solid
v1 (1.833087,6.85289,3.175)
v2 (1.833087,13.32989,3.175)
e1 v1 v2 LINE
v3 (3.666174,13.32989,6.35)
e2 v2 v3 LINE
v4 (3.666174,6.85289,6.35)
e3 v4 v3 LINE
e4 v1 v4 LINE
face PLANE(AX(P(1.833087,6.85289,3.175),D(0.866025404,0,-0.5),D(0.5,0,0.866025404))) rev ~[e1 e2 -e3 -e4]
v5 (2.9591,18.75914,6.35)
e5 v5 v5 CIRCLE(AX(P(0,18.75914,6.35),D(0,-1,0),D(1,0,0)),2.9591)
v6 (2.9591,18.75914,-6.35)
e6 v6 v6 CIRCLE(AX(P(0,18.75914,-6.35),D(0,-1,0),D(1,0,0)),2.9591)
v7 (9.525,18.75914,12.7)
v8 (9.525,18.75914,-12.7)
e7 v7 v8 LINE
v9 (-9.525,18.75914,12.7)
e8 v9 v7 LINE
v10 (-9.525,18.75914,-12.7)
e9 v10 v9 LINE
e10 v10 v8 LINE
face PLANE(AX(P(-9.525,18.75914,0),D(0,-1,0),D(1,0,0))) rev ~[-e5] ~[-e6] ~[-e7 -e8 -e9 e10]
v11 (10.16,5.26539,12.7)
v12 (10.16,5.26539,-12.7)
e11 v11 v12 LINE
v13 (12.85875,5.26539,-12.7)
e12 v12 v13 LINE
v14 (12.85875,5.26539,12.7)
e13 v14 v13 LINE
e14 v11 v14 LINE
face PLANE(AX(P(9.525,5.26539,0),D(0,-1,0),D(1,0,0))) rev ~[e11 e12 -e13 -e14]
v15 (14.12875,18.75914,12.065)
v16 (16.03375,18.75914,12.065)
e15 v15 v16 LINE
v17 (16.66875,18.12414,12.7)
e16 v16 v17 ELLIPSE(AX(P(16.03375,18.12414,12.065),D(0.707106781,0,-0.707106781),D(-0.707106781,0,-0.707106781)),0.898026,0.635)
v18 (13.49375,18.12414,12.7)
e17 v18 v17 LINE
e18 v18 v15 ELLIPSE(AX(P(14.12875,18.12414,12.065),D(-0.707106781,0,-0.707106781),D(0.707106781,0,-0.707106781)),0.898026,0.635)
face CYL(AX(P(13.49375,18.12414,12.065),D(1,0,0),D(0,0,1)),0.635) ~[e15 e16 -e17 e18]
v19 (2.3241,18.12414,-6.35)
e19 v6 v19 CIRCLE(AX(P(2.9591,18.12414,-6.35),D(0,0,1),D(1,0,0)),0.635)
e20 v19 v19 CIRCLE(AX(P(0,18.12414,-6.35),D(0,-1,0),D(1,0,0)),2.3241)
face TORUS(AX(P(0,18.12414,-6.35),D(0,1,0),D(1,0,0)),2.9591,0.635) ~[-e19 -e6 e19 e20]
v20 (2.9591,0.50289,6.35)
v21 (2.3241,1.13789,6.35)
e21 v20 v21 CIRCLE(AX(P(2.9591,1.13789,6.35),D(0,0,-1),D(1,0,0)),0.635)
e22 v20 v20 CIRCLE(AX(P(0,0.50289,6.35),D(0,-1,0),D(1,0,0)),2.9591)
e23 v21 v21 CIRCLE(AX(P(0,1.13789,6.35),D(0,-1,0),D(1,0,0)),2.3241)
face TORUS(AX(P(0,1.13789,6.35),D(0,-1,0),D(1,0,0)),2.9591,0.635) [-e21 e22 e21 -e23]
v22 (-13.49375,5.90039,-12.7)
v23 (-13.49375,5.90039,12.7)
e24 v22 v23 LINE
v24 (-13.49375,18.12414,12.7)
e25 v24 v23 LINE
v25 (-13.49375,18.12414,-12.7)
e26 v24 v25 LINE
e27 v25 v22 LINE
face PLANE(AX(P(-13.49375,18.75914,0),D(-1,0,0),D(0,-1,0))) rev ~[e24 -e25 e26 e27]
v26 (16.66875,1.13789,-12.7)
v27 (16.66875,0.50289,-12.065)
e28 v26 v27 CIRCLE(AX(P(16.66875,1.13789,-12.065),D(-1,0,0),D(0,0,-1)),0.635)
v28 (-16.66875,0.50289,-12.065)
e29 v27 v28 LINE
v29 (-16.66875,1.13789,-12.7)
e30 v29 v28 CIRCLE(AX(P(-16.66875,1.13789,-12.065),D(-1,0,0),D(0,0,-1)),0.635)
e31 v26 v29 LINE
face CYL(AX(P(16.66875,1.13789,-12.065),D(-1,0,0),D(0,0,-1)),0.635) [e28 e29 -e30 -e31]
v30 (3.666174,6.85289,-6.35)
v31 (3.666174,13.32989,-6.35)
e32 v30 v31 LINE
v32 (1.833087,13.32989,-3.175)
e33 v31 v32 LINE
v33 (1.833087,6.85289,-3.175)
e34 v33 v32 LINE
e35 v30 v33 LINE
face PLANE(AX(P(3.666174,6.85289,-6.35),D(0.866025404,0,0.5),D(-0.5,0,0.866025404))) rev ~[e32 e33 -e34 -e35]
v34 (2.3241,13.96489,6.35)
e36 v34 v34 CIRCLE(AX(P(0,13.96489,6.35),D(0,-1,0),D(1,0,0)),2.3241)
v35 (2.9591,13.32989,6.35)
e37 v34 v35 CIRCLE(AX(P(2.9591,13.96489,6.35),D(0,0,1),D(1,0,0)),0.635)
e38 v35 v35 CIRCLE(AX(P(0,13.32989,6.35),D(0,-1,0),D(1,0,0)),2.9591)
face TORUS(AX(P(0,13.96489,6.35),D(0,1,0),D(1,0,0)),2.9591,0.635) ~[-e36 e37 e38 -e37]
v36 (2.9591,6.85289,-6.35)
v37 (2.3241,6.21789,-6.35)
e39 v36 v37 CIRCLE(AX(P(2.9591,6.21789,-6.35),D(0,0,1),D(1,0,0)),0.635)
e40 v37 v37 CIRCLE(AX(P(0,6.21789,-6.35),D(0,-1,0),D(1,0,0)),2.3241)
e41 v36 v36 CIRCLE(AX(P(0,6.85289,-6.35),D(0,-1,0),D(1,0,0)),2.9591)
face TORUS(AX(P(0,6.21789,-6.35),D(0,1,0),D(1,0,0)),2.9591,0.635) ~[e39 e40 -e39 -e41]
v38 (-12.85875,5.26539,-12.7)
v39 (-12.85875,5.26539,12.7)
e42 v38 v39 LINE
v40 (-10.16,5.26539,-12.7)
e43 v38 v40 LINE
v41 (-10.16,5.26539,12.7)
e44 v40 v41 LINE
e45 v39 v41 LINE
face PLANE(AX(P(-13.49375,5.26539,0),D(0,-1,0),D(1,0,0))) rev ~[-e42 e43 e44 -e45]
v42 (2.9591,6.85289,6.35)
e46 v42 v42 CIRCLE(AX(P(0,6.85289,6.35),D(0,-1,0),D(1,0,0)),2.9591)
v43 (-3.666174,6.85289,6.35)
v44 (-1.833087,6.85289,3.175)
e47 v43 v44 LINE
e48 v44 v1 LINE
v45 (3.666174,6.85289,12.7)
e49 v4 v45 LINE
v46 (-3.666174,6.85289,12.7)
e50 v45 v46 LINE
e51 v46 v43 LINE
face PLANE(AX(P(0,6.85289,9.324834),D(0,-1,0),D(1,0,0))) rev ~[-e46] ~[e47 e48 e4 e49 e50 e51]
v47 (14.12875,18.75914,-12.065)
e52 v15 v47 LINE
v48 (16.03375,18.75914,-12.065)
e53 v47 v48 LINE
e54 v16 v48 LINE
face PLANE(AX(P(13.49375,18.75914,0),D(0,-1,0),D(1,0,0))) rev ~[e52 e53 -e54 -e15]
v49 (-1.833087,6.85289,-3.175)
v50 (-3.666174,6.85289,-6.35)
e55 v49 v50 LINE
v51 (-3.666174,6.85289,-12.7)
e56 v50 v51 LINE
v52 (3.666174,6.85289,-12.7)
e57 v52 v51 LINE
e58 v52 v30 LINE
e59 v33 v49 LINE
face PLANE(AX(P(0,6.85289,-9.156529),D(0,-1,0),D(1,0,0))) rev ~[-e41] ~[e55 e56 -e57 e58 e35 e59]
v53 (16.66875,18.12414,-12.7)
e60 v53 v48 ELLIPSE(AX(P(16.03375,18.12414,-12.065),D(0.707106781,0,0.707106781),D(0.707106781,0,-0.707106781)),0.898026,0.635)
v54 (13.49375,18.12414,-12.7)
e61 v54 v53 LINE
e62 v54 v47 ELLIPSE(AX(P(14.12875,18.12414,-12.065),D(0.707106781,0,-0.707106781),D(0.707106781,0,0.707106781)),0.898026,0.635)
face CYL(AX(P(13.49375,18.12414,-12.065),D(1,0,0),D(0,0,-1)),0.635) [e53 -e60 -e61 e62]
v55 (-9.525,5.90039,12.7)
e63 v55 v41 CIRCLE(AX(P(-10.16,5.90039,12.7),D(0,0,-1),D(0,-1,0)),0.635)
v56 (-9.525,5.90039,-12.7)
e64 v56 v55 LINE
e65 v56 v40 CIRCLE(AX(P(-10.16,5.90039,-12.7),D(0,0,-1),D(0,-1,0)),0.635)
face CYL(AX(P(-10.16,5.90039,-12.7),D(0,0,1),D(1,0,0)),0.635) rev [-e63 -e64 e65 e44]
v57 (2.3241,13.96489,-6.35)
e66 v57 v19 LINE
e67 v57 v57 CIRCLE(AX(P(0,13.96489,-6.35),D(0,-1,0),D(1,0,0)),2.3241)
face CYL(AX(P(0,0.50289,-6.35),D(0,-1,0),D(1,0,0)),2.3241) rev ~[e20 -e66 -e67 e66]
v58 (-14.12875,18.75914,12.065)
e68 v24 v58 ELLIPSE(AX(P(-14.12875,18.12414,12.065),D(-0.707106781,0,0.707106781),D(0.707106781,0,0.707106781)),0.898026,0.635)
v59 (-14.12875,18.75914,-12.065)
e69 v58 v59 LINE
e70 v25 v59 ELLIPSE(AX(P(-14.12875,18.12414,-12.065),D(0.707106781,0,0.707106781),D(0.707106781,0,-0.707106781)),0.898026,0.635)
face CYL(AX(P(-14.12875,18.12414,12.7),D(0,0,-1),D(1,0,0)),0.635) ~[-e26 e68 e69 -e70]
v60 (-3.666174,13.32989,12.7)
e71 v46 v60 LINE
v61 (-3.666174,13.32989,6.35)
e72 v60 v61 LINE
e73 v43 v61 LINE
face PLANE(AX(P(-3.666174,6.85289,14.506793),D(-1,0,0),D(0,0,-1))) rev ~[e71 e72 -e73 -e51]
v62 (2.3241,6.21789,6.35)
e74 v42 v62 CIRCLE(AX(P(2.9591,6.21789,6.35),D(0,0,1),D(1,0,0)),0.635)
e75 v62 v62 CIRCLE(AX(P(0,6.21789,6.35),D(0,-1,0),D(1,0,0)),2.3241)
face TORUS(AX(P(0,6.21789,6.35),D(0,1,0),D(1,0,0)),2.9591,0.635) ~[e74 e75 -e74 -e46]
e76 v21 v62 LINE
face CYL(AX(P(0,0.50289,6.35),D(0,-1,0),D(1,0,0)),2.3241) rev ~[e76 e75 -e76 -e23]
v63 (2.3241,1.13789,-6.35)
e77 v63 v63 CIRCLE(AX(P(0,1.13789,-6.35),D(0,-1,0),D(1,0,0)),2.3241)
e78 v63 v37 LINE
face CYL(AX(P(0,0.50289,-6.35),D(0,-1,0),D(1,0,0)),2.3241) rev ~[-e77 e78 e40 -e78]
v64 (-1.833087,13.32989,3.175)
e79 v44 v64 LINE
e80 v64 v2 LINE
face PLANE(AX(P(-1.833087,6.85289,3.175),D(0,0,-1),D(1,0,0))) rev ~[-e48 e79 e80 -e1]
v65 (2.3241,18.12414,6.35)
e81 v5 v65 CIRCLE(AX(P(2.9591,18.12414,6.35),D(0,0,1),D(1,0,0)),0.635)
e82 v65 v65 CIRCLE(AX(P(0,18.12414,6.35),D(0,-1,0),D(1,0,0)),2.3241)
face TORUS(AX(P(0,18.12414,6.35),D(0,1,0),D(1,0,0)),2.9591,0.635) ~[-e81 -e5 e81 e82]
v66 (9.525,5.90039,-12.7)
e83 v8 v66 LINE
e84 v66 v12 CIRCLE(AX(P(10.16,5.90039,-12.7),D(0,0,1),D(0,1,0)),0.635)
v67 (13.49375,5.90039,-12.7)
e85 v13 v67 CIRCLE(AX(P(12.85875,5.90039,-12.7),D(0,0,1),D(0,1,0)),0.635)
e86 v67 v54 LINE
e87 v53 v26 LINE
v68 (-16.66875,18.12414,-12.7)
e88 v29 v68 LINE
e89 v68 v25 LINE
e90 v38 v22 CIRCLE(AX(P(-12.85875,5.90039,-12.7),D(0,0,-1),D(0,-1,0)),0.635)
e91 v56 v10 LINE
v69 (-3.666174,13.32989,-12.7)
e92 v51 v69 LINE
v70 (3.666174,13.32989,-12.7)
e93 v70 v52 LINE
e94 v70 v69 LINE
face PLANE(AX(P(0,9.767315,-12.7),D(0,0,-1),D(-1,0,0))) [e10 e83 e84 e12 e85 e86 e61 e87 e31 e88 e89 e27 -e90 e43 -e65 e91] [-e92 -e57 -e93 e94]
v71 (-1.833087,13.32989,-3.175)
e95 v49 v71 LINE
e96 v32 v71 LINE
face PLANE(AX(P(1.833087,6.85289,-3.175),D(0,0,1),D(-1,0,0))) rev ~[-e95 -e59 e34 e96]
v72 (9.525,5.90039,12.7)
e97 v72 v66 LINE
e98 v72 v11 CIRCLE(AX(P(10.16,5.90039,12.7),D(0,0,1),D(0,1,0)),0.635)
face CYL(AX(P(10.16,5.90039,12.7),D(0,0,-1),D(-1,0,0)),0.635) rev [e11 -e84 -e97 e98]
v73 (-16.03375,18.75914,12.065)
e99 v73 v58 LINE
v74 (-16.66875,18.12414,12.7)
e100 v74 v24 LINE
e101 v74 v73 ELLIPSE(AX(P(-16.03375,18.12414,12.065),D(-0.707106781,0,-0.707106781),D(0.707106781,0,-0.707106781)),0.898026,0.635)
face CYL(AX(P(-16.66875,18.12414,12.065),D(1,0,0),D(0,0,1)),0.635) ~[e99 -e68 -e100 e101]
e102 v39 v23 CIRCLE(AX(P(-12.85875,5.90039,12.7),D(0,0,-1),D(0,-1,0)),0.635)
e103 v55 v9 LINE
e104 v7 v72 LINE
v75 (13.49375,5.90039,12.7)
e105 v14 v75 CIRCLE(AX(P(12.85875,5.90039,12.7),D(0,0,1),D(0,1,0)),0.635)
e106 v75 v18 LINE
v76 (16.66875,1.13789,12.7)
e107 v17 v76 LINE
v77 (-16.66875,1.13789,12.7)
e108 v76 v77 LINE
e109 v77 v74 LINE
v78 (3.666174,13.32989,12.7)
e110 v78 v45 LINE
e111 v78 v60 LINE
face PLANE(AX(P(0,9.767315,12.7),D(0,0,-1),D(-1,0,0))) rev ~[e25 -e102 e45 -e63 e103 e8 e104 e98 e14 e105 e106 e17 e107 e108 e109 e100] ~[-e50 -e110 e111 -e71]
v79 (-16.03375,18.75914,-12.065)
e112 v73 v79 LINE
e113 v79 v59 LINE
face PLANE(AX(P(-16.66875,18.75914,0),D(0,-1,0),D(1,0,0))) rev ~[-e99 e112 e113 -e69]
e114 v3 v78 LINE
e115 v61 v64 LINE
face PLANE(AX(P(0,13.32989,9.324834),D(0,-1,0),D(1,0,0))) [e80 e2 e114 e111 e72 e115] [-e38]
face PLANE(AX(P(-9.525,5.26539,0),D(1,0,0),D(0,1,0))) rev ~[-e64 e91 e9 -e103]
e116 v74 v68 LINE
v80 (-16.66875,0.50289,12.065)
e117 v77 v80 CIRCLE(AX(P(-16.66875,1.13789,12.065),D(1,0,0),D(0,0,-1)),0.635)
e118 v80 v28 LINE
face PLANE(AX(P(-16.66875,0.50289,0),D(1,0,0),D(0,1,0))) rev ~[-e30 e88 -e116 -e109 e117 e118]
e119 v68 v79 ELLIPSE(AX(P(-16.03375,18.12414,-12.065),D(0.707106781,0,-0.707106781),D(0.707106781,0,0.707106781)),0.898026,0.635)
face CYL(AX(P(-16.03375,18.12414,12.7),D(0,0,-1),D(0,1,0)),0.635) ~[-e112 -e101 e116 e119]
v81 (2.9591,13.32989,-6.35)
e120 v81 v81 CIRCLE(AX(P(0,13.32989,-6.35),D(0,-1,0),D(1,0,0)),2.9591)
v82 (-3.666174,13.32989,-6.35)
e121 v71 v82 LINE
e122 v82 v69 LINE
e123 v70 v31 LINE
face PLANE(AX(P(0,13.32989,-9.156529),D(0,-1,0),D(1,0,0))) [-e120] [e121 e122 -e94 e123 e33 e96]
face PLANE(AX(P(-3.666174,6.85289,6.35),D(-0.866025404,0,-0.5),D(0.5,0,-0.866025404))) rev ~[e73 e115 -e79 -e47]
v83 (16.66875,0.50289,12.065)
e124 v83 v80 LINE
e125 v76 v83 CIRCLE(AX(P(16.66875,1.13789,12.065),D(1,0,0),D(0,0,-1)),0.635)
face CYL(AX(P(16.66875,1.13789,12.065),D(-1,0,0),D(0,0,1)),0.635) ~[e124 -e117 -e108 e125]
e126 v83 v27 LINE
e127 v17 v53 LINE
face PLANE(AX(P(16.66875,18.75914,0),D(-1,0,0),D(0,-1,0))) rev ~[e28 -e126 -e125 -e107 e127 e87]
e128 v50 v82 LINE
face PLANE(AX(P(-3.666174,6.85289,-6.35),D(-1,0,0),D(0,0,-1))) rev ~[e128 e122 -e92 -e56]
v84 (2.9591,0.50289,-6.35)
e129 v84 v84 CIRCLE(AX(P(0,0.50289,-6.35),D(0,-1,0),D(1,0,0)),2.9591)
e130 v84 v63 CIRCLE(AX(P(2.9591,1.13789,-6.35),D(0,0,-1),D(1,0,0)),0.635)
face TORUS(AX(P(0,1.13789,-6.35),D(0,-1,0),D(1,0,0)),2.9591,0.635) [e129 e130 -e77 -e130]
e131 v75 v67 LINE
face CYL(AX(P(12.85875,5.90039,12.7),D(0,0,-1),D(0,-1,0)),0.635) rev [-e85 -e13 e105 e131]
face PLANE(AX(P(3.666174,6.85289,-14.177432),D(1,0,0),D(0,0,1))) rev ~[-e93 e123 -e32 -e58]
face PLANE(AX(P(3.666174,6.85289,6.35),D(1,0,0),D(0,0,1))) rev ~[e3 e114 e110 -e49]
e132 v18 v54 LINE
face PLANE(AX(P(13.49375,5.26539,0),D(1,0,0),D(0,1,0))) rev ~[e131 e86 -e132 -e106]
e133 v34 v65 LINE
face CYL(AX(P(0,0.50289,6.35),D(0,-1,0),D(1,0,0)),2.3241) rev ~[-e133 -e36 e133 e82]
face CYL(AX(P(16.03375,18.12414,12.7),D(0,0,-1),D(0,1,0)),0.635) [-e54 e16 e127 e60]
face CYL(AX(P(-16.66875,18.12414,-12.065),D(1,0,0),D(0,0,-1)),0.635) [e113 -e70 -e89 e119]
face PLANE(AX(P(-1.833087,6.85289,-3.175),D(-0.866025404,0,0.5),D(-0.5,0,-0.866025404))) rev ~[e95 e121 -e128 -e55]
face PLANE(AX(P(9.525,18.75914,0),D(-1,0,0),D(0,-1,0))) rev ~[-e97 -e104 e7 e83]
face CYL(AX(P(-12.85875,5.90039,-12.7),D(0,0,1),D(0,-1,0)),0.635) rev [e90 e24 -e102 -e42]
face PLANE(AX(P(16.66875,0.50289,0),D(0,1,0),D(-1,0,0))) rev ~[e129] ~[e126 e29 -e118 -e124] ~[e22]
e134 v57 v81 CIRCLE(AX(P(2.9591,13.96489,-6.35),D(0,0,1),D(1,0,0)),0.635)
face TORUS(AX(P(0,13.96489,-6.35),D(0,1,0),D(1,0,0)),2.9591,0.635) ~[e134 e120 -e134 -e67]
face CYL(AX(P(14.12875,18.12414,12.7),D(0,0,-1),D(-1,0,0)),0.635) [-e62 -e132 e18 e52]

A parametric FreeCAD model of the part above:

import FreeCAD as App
import Part
import Sketcher
from FreeCAD import Vector
Q = App.Units.Quantity


def edges_at(feature, points):
    """Names of the edges that pass closest to the given points."""
    edges = feature.Shape.Edges
    near = lambda p: min(range(len(edges)), key=lambda i: edges[i].distToShape(Part.Vertex(*p))[0])
    return sorted({f"Edge{near(p) + 1}" for p in points})


def add_polygon(sketch, points):
    """Adds a closed chain of lines whose ends are joined by coincident constraints."""
    first, n = sketch.GeometryCount, len(points)
    for a, b in zip(points, points[1:] + points[:1]):
        sketch.addGeometry(Part.LineSegment(App.Vector(*a, 0), App.Vector(*b, 0)), False)
    for i in range(n):
        sketch.addConstraint(Sketcher.Constraint("Coincident", first + i, 2, first + (i + 1) % n, 1))

doc = App.newDocument("Part")
body = doc.addObject("PartDesign::Body", "Body")

# Sketch on XY plane
sketch1 = body.newObject("Sketcher::SketchObject", "Sketch")
sketch1.AttachmentSupport = (doc.getObject("XY_Plane"), [""])
sketch1.MapMode = "FlatFace"
add_polygon(sketch1, [(9.5, 18.8), (-9.5, 18.8), (-9.5, 5.3), (-13.5, 5.3), (-13.5, 18.8), (-16.7, 18.8), (-16.7, 0.5), (16.7, 0.5), (16.7, 18.8), (13.5, 18.8), (13.5, 5.3), (9.5, 5.3)])  # lines 0-11
sketch1.addConstraint([
    Sketcher.Constraint("Horizontal", 0),
    Sketcher.Constraint("Vertical", 1),
    Sketcher.Constraint("Horizontal", 2),
    Sketcher.Constraint("Vertical", 3),
    Sketcher.Constraint("Horizontal", 4),
    Sketcher.Constraint("Vertical", 5),
    Sketcher.Constraint("Horizontal", 6),
    Sketcher.Constraint("Vertical", 7),
    Sketcher.Constraint("Horizontal", 8),
    Sketcher.Constraint("Vertical", 9),
    Sketcher.Constraint("Horizontal", 10),
    Sketcher.Constraint("Vertical", 11),
    Sketcher.Constraint("Symmetric", 4, 2, 7, 2, -2),
    Sketcher.Constraint("Symmetric", 2, 2, 9, 2, -2),
    Sketcher.Constraint("Horizontal", 0, 2, 3, 2),
    Sketcher.Constraint("Equal", 2, 10),
    Sketcher.Constraint("DistanceX", 0, 2, 0, 1, Q("0.75 in")),
    Sketcher.Constraint("DistanceX", 2, 2, 2, 1, Q("0.15625 in")),
    Sketcher.Constraint("DistanceX", 4, 2, 4, 1, Q("0.125 in")),
    Sketcher.Constraint("DistanceY", 1, 2, 1, 1, Q("0.53125 in")),
    Sketcher.Constraint("DistanceY", 5, 2, 5, 1, Q("0.71875 in")),
    Sketcher.Constraint("DistanceY", -1, 1, 0, 2, 18.75914),
])
pad1 = body.newObject("PartDesign::Pad", "Pad")
pad1.Profile = sketch1
pad1.Length = Q("1 in")
pad1.Midplane = True

# Sketch on XZ plane
sketch2 = body.newObject("Sketcher::SketchObject", "Sketch001")
sketch2.AttachmentSupport = (doc.getObject("XZ_Plane"), [""])
sketch2.MapMode = "FlatFace"
sketch2.AttachmentOffset = App.Placement(Vector(0, 0, -0.50289), App.Rotation())
sketch2.addGeometry([
    Part.Circle(Vector(0, 6.3, 0), Vector(0, 0, 1), 2.3),
    Part.Circle(Vector(0, -6.3, 0), Vector(0, 0, 1), 2.3),
], False)
sketch2.addConstraint([
    Sketcher.Constraint("Equal", 0, 1),
    Sketcher.Constraint("Symmetric", 0, 3, 1, 3, -1, 1),
    Sketcher.Constraint("PointOnObject", 0, 3, -2),
    Sketcher.Constraint("Diameter", 0, Q("0.183 in")),
    Sketcher.Constraint("DistanceY", 1, 3, 0, 3, Q("0.5 in")),
])
pocket1 = body.newObject("PartDesign::Pocket", "Pocket")
pocket1.Profile = sketch2
pocket1.Length = Q("0.75 in")

# Sketch on XZ plane
sketch3 = body.newObject("Sketcher::SketchObject", "Sketch002")
sketch3.AttachmentSupport = (doc.getObject("XZ_Plane"), [""])
sketch3.MapMode = "FlatFace"
sketch3.AttachmentOffset = App.Placement(Vector(0, 0, -6.85289), App.Rotation())
add_polygon(sketch3, [(-3.7, -6.3), (-3.7, -14.2), (3.7, -14.2), (3.7, -6.3), (1.8, -3.2), (-1.8, -3.2)])  # lines 0-5
add_polygon(sketch3, [(-3.7, 6.3), (-1.8, 3.2), (1.8, 3.2), (3.7, 6.3), (3.7, 14.5), (-3.7, 14.5)])  # lines 6-11
sketch3.addConstraint([
    Sketcher.Constraint("Vertical", 0),
    Sketcher.Constraint("Horizontal", 1),
    Sketcher.Constraint("Vertical", 2),
    Sketcher.Constraint("Horizontal", 4),
    Sketcher.Constraint("Horizontal", 7),
    Sketcher.Constraint("Vertical", 9),
    Sketcher.Constraint("Horizontal", 10),
    Sketcher.Constraint("Vertical", 11),
    Sketcher.Constraint("Symmetric", 3, 2, 6, 2, -1, 1),
    Sketcher.Constraint("Symmetric", 5, 2, 8, 2, -1, 1),
    Sketcher.Constraint("Symmetric", 2, 2, 11, 2, -1, 1),
    Sketcher.Constraint("Symmetric", 2, 2, 5, 2, -2),
    Sketcher.Constraint("Parallel", 5, 8),
    Sketcher.Constraint("Vertical", 4, 2, 6, 2),
    Sketcher.Constraint("Angle", 3, Q("120 deg")),
    Sketcher.Constraint("DistanceY", 2, 2, 8, 2, Q("0.5 in")),
    Sketcher.Constraint("DistanceY", 4, 2, 6, 2, Q("0.25 in")),
    Sketcher.Constraint("DistanceX", 1, 1, 1, 2, 7.332348),
    Sketcher.Constraint("DistanceY", 0, 2, 0, 1, 7.827432),
    Sketcher.Constraint("DistanceY", 9, 1, 9, 2, 8.156793),
])
pocket2 = body.newObject("PartDesign::Pocket", "Pocket001")
pocket2.Profile = sketch3
pocket2.Length = Q("0.255 in")
doc.recompute()

fillet = body.newObject("PartDesign::Fillet", "Fillet")
fillet.Base = (pocket2, edges_at(pocket2, [
    (15.081, 18.759, -12.7),
    (0, 0.503, -12.7),
    (-15.081, 18.759, -12.7),
    (-15.081, 18.759, 12.7),
    (9.525, 5.265, 0),
    (13.494, 5.265, 0),
    (13.494, 18.759, 0),
    (16.669, 18.759, 0),
    (-16.669, 18.759, 0),
    (-13.494, 18.759, 0),
    (-13.494, 5.265, 0),
    (-9.525, 5.265, 0),
    (0, 0.503, 12.7),
    (15.081, 18.759, 12.7),
    (-2.324, 18.759, 6.35),
    (-2.324, 0.503, 6.35),
    (-2.324, 18.759, -6.35),
    (-2.324, 0.503, -6.35),
    (-2.324, 6.853, 6.35),
    (-2.324, 13.33, 6.35),
    (-2.324, 6.853, -6.35),
    (-2.324, 13.33, -6.35),
]))
fillet.Radius = Q("0.025 in")

doc.recompute()
